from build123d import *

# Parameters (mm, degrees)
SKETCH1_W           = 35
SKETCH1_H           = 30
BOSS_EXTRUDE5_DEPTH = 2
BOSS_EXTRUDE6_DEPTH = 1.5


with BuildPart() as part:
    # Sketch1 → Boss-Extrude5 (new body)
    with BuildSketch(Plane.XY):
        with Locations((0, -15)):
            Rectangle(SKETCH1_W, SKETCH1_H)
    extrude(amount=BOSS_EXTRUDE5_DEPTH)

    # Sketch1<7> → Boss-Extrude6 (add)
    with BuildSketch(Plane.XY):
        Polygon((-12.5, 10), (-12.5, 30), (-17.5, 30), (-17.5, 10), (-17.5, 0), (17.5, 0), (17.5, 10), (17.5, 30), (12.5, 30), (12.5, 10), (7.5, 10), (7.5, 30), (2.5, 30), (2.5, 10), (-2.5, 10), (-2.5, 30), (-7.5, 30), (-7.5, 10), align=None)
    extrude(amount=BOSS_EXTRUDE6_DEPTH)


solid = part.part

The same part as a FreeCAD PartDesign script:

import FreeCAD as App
import Part
import Sketcher
Q = App.Units.Quantity

doc = App.newDocument("Part")
body = doc.addObject("PartDesign::Body", "Body")

# Sketch on XY plane
sketch1 = doc.addObject("Sketcher::SketchObject", "Sketch")
body.addObject(sketch1)
sketch1.AttachmentSupport = (doc.XY_Plane, [""])
sketch1.MapMode = "FlatFace"
sketch1.addGeometry([
    Part.LineSegment(App.Vector(-18, 0, 0), App.Vector(-18, -30, 0)),
    Part.LineSegment(App.Vector(-18, -30, 0), App.Vector(18, -30, 0)),
    Part.LineSegment(App.Vector(18, -30, 0), App.Vector(18, 0, 0)),
    Part.LineSegment(App.Vector(18, 0, 0), App.Vector(-18, 0, 0)),
], False)
sketch1.addConstraint([
    Sketcher.Constraint("Coincident", 0, 2, 1, 1),
    Sketcher.Constraint("Coincident", 1, 2, 2, 1),
    Sketcher.Constraint("Coincident", 2, 2, 3, 1),
    Sketcher.Constraint("Coincident", 3, 2, 0, 1),
    Sketcher.Constraint("Vertical", 0),
    Sketcher.Constraint("Horizontal", 1),
    Sketcher.Constraint("Vertical", 2),
    Sketcher.Constraint("Horizontal", 3),
    Sketcher.Constraint("Symmetric", 2, 2, 3, 2, -1, 1),
    Sketcher.Constraint("DistanceX", 1, 1, 1, 2, Q("35 mm")),
    Sketcher.Constraint("DistanceY", 0, 2, 0, 1, Q("30 mm")),
])
pad1 = doc.addObject("PartDesign::Pad", "Pad")
body.addObject(pad1)
pad1.Profile = sketch1
pad1.Length = 2

# Sketch on XY plane
sketch2 = doc.addObject("Sketcher::SketchObject", "Sketch001")
body.addObject(sketch2)
sketch2.AttachmentSupport = (doc.XY_Plane, [""])
sketch2.MapMode = "FlatFace"
sketch2.addGeometry([
    Part.LineSegment(App.Vector(-12, 10, 0), App.Vector(-12, 30, 0)),  # 0
    Part.LineSegment(App.Vector(-12, 30, 0), App.Vector(-18, 30, 0)),  # 1
    Part.LineSegment(App.Vector(-18, 30, 0), App.Vector(-18, 0, 0)),  # 2
    Part.LineSegment(App.Vector(-18, 0, 0), App.Vector(18, 0, 0)),  # 3
    Part.LineSegment(App.Vector(18, 0, 0), App.Vector(18, 30, 0)),  # 4
    Part.LineSegment(App.Vector(18, 30, 0), App.Vector(12, 30, 0)),  # 5
    Part.LineSegment(App.Vector(12, 30, 0), App.Vector(12, 10, 0)),  # 6
    Part.LineSegment(App.Vector(12, 10, 0), App.Vector(8, 10, 0)),  # 7
    Part.LineSegment(App.Vector(8, 10, 0), App.Vector(8, 30, 0)),  # 8
    Part.LineSegment(App.Vector(8, 30, 0), App.Vector(2, 30, 0)),  # 9
    Part.LineSegment(App.Vector(2, 30, 0), App.Vector(2, 10, 0)),  # 10
    Part.LineSegment(App.Vector(2, 10, 0), App.Vector(-2, 10, 0)),  # 11
    Part.LineSegment(App.Vector(-2, 10, 0), App.Vector(-2, 30, 0)),  # 12
    Part.LineSegment(App.Vector(-2, 30, 0), App.Vector(-8, 30, 0)),  # 13
    Part.LineSegment(App.Vector(-8, 30, 0), App.Vector(-8, 10, 0)),  # 14
    Part.LineSegment(App.Vector(-8, 10, 0), App.Vector(-12, 10, 0)),  # 15
], False)
sketch2.addConstraint([
    Sketcher.Constraint("Coincident", 0, 2, 1, 1),
    Sketcher.Constraint("Coincident", 1, 2, 2, 1),
    Sketcher.Constraint("Coincident", 2, 2, 3, 1),
    Sketcher.Constraint("Coincident", 3, 2, 4, 1),
    Sketcher.Constraint("Coincident", 4, 2, 5, 1),
    Sketcher.Constraint("Coincident", 5, 2, 6, 1),
    Sketcher.Constraint("Coincident", 6, 2, 7, 1),
    Sketcher.Constraint("Coincident", 7, 2, 8, 1),
    Sketcher.Constraint("Coincident", 8, 2, 9, 1),
    Sketcher.Constraint("Coincident", 9, 2, 10, 1),
    Sketcher.Constraint("Coincident", 10, 2, 11, 1),
    Sketcher.Constraint("Coincident", 11, 2, 12, 1),
    Sketcher.Constraint("Coincident", 12, 2, 13, 1),
    Sketcher.Constraint("Coincident", 13, 2, 14, 1),
    Sketcher.Constraint("Coincident", 14, 2, 15, 1),
    Sketcher.Constraint("Coincident", 15, 2, 0, 1),
    Sketcher.Constraint("Vertical", 0),
    Sketcher.Constraint("Horizontal", 1),
    Sketcher.Constraint("Vertical", 2),
    Sketcher.Constraint("Horizontal", 3),
    Sketcher.Constraint("Vertical", 4),
    Sketcher.Constraint("Horizontal", 5),
    Sketcher.Constraint("Vertical", 6),
    Sketcher.Constraint("Horizontal", 7),
    Sketcher.Constraint("Vertical", 8),
    Sketcher.Constraint("Horizontal", 9),
    Sketcher.Constraint("Vertical", 10),
    Sketcher.Constraint("Horizontal", 11),
    Sketcher.Constraint("Vertical", 12),
    Sketcher.Constraint("Horizontal", 13),
    Sketcher.Constraint("Vertical", 14),
    Sketcher.Constraint("Horizontal", 15),
    Sketcher.Constraint("Symmetric", 2, 2, 3, 2, -1, 1),
    Sketcher.Constraint("Symmetric", 0, 2, 5, 2, -2),
    Sketcher.Constraint("Symmetric", 9, 2, 12, 2, -2),
    Sketcher.Constraint("Symmetric", 7, 2, 14, 2, -2),
    Sketcher.Constraint("Horizontal", 5, 2, 8, 2),
    Sketcher.Constraint("Horizontal", 7, 2, 10, 2),
    Sketcher.Constraint("Equal", 5, 7),
    Sketcher.Constraint("Equal", 7, 9),
    Sketcher.Constraint("Equal", 9, 11),
    Sketcher.Constraint("DistanceX", 1, 2, 1, 1, Q("5 mm")),
    Sketcher.Constraint("DistanceY", 0, 1, 0, 2, Q("20 mm")),
    Sketcher.Constraint("DistanceY", 2, 2, 2, 1, Q("30 mm")),
])
pad2 = doc.addObject("PartDesign::Pad", "Pad001")
body.addObject(pad2)
pad2.Profile = sketch2
pad2.Length = 1.5

doc.recompute()
